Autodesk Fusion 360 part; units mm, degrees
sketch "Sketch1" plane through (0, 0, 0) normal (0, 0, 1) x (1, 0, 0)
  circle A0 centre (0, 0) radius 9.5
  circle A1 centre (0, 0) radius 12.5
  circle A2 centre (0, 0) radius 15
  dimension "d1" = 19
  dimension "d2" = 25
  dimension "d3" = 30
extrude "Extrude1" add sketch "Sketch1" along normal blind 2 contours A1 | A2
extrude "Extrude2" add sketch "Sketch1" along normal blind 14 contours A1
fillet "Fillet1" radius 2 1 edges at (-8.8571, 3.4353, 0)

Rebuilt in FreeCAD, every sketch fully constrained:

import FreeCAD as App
import Part
import Sketcher

V = App.Vector
Q = App.Units.Quantity


def edges_at(feature, points):
    """Names of the edges that pass closest to the given points."""
    edges = feature.Shape.Edges
    near = lambda p: min(range(len(edges)), key=lambda i: edges[i].distToShape(Part.Vertex(*p))[0])
    return sorted({f"Edge{near(p) + 1}" for p in points})

doc = App.newDocument("Part")
params = doc.addObject("Spreadsheet::Sheet", "Params")
for row, (alias, value) in enumerate([
    ("sketch1_diameter", "30 mm"),
    ("sketch1_diameter2", "19 mm"),
    ("pad1_length", "2 mm"),
    ("sketch2_diameter", "25 mm"),
    ("sketch2_diameter2", "19 mm"),
    ("pad2_length", "14 mm"),
    ("fillet_radius", "2 mm"),
], start=1):
    params.set(f"A{row}", alias)
    params.set(f"B{row}", "=" + value)
    params.setAlias(f"B{row}", alias)

body = doc.addObject("PartDesign::Body", "Body")

# Sketch on XY plane
sketch1 = doc.addObject("Sketcher::SketchObject", "Sketch")
body.addObject(sketch1)
sketch1.AttachmentSupport = (doc.XY_Plane, [""])
sketch1.MapMode = "FlatFace"
sketch1.addGeometry([
    Part.Circle(V(0, 0, 0), V(0, 0, 1), 15),
    Part.Circle(V(0, 0, 0), V(0, 0, 1), 10),
], False)
sketch1.addConstraint([
    Sketcher.Constraint("Coincident", 0, 3, -1, 1),
    Sketcher.Constraint("Coincident", 1, 3, -1, 1),
    Sketcher.Constraint("Diameter", 0, Q("30 mm")),
    Sketcher.Constraint("Diameter", 1, Q("19 mm")),
])
sketch1.setExpression("Constraints[2]", "Params.sketch1_diameter")
sketch1.setExpression("Constraints[3]", "Params.sketch1_diameter2")
pad1 = doc.addObject("PartDesign::Pad", "Pad")
body.addObject(pad1)
pad1.Profile = sketch1
pad1.setExpression("Length", "Params.pad1_length")

# Sketch on XY plane
sketch2 = doc.addObject("Sketcher::SketchObject", "Sketch001")
body.addObject(sketch2)
sketch2.AttachmentSupport = (doc.XY_Plane, [""])
sketch2.MapMode = "FlatFace"
sketch2.addGeometry([
    Part.Circle(V(0, 0, 0), V(0, 0, 1), 12),
    Part.Circle(V(0, 0, 0), V(0, 0, 1), 10),
], False)
sketch2.addConstraint([
    Sketcher.Constraint("Coincident", 0, 3, -1, 1),
    Sketcher.Constraint("Coincident", 1, 3, -1, 1),
    Sketcher.Constraint("Diameter", 0, Q("25 mm")),
    Sketcher.Constraint("Diameter", 1, Q("19 mm")),
])
sketch2.setExpression("Constraints[2]", "Params.sketch2_diameter")
sketch2.setExpression("Constraints[3]", "Params.sketch2_diameter2")
pad2 = doc.addObject("PartDesign::Pad", "Pad001")
body.addObject(pad2)
pad2.Profile = sketch2
pad2.setExpression("Length", "Params.pad2_length")
doc.recompute()

fillet = doc.addObject("PartDesign::Fillet", "Fillet")
body.addObject(fillet)
fillet.Base = (pad2, edges_at(pad2, [(-8.857, 3.435, 0)]))
fillet.setExpression("Radius", "Params.fillet_radius")

doc.recompute()
